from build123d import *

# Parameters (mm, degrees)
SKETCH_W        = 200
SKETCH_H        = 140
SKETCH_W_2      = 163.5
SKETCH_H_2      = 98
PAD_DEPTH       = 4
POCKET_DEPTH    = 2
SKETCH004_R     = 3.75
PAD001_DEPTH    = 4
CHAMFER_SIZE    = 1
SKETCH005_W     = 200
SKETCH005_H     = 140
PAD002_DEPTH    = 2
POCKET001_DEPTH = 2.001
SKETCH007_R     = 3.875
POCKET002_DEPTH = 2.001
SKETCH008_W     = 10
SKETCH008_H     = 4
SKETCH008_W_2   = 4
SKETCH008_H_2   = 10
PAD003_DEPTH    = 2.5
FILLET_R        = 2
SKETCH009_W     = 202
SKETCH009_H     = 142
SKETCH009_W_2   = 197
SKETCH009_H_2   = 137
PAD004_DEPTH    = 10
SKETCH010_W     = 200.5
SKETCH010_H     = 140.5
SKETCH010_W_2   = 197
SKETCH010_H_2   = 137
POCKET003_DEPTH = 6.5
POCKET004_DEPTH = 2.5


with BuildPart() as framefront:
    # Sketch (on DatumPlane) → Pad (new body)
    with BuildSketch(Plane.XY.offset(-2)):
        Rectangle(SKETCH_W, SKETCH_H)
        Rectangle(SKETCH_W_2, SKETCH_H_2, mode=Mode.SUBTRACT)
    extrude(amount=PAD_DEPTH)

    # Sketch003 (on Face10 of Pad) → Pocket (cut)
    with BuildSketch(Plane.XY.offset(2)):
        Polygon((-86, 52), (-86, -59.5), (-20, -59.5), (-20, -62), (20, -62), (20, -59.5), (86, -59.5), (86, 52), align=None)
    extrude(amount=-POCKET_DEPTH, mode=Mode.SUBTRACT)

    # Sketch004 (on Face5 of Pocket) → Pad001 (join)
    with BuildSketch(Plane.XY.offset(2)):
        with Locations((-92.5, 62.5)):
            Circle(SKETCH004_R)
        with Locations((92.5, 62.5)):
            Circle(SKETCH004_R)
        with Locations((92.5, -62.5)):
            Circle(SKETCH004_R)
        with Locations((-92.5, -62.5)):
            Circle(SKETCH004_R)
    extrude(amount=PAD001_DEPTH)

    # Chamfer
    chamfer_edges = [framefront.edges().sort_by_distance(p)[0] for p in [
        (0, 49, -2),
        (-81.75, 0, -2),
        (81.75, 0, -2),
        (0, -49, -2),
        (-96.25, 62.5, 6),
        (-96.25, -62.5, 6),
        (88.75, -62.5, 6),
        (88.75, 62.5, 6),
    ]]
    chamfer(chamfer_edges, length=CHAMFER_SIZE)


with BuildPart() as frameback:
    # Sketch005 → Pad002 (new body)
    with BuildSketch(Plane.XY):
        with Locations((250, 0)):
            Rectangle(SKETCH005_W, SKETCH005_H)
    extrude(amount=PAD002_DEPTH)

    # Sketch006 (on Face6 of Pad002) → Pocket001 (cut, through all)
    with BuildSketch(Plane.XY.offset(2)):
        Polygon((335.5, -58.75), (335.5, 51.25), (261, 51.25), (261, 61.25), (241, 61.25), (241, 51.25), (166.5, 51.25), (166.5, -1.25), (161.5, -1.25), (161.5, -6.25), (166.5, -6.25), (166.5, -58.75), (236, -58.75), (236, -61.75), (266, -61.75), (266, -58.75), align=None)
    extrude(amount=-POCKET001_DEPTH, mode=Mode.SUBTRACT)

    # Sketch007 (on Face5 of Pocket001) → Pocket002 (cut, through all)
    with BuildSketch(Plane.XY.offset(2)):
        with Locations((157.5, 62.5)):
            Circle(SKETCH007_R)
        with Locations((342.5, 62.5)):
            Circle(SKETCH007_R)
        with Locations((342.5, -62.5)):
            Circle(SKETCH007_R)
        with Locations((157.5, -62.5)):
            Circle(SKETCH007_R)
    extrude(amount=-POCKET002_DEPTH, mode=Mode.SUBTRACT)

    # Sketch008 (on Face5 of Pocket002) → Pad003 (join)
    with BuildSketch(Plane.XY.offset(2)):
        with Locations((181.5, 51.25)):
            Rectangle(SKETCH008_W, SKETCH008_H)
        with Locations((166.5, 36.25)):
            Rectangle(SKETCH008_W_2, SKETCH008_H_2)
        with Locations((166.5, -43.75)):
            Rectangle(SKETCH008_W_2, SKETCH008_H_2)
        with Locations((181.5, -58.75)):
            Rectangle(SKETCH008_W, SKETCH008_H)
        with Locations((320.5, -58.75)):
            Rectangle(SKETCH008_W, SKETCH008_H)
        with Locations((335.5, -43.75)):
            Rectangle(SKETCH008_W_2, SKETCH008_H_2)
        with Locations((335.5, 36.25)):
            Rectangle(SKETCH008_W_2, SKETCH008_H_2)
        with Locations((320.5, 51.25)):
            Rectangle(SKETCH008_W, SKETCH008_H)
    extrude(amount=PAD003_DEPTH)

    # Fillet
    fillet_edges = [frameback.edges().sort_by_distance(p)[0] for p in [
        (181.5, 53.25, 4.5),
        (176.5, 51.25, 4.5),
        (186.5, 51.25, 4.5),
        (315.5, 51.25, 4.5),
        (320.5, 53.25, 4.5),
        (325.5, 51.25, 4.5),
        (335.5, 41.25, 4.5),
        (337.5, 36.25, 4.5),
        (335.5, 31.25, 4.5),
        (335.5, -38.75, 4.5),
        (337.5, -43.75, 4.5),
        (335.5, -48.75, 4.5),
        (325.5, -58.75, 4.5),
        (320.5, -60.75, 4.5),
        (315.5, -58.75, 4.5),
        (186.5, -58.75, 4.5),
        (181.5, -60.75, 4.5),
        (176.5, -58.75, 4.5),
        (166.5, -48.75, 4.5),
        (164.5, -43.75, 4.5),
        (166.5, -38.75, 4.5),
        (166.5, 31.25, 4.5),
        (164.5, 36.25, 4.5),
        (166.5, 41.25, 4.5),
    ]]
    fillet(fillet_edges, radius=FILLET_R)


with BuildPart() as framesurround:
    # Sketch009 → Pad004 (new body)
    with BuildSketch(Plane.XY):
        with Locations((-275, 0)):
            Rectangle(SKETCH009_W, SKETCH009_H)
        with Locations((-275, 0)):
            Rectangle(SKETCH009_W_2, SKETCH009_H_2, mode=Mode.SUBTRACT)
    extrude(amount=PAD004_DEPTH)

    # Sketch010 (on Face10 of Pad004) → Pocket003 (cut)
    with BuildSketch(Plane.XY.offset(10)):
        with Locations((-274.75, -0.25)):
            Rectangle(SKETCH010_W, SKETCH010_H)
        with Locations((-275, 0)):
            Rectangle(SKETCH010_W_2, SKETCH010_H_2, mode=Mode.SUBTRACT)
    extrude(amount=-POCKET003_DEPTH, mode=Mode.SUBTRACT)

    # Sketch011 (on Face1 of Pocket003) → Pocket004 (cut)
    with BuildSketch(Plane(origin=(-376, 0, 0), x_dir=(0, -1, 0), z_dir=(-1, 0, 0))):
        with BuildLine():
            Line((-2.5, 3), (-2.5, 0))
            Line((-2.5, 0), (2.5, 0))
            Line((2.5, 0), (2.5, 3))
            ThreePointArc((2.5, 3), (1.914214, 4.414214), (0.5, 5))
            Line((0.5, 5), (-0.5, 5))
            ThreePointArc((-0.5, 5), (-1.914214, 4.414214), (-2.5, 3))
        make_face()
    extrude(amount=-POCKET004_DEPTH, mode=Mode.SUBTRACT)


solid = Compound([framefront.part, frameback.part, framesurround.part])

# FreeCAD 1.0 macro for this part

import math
import FreeCAD as App
import Part
import Sketcher


def edges_at(feature, points):
    """Names of the edges that pass closest to the given points."""
    edges = feature.Shape.Edges
    near = lambda p: min(range(len(edges)), key=lambda i: edges[i].distToShape(Part.Vertex(*p))[0])
    return sorted({f"Edge{near(p) + 1}" for p in points})

doc = App.newDocument("Part")
body = doc.addObject("PartDesign::Body", "Body")

sketch1 = body.newObject("Sketcher::SketchObject", "Sketch")
sketch1.AttachmentSupport = (doc.getObject("XY_Plane"), [""])
sketch1.MapMode = "FlatFace"
sketch1.AttachmentOffset = App.Placement(App.Vector(0, 0, -2), App.Rotation())
sketch1.addGeometry([
    Part.LineSegment(App.Vector(-100, 70, 0), App.Vector(-100, -70, 0)),
    Part.LineSegment(App.Vector(-100, -70, 0), App.Vector(100, -70, 0)),
    Part.LineSegment(App.Vector(100, -70, 0), App.Vector(100, 70, 0)),
    Part.LineSegment(App.Vector(100, 70, 0), App.Vector(-100, 70, 0)),
    Part.LineSegment(App.Vector(82, -49, 0), App.Vector(-82, -49, 0)),
    Part.LineSegment(App.Vector(-82, -49, 0), App.Vector(-82, 49, 0)),
    Part.LineSegment(App.Vector(-82, 49, 0), App.Vector(82, 49, 0)),
    Part.LineSegment(App.Vector(82, 49, 0), App.Vector(82, -49, 0)),
], False)
sketch1.addConstraint([
    Sketcher.Constraint("Coincident", 0, 2, 1, 1),
    Sketcher.Constraint("Coincident", 1, 2, 2, 1),
    Sketcher.Constraint("Coincident", 2, 2, 3, 1),
    Sketcher.Constraint("Coincident", 3, 2, 0, 1),
    Sketcher.Constraint("Coincident", 4, 2, 5, 1),
    Sketcher.Constraint("Coincident", 5, 2, 6, 1),
    Sketcher.Constraint("Coincident", 6, 2, 7, 1),
    Sketcher.Constraint("Coincident", 7, 2, 4, 1),
    Sketcher.Constraint("Vertical", 0),
    Sketcher.Constraint("Horizontal", 1),
    Sketcher.Constraint("Vertical", 2),
    Sketcher.Constraint("Horizontal", 3),
    Sketcher.Constraint("Horizontal", 4),
    Sketcher.Constraint("Vertical", 5),
    Sketcher.Constraint("Horizontal", 6),
    Sketcher.Constraint("Vertical", 7),
    Sketcher.Constraint("Symmetric", 0, 2, 2, 2, -1, 1),
    Sketcher.Constraint("Symmetric", 4, 2, 6, 2, -1, 1),
    Sketcher.Constraint("DistanceX", 1, 1, 1, 2, 200.0),
    Sketcher.Constraint("DistanceY", 0, 2, 0, 1, 140.0),
    Sketcher.Constraint("DistanceY", 5, 1, 5, 2, 98.0),
    Sketcher.Constraint("DistanceX", 4, 2, 4, 1, 163.5),
])
pad1 = body.newObject("PartDesign::Pad", "Pad")
pad1.Profile = sketch1
pad1.Length = 4

sketch2 = body.newObject("Sketcher::SketchObject", "Sketch001")
sketch2.AttachmentSupport = (doc.getObject("XY_Plane"), [""])
sketch2.MapMode = "FlatFace"
sketch2.AttachmentOffset = App.Placement(App.Vector(0, 0, 2), App.Rotation())
sketch2.addGeometry([
    Part.LineSegment(App.Vector(-86, 52, 0), App.Vector(-86, -59.5, 0)),
    Part.LineSegment(App.Vector(-86, -59.5, 0), App.Vector(-20, -59.5, 0)),
    Part.LineSegment(App.Vector(-20, -59.5, 0), App.Vector(-20, -62, 0)),
    Part.LineSegment(App.Vector(-20, -62, 0), App.Vector(20, -62, 0)),
    Part.LineSegment(App.Vector(20, -62, 0), App.Vector(20, -59.5, 0)),
    Part.LineSegment(App.Vector(20, -59.5, 0), App.Vector(86, -59.5, 0)),
    Part.LineSegment(App.Vector(86, -59.5, 0), App.Vector(86, 52, 0)),
    Part.LineSegment(App.Vector(86, 52, 0), App.Vector(-86, 52, 0)),
], False)
sketch2.addConstraint([
    Sketcher.Constraint("Coincident", 0, 2, 1, 1),
    Sketcher.Constraint("Coincident", 1, 2, 2, 1),
    Sketcher.Constraint("Coincident", 2, 2, 3, 1),
    Sketcher.Constraint("Coincident", 3, 2, 4, 1),
    Sketcher.Constraint("Coincident", 4, 2, 5, 1),
    Sketcher.Constraint("Coincident", 5, 2, 6, 1),
    Sketcher.Constraint("Coincident", 6, 2, 7, 1),
    Sketcher.Constraint("Coincident", 7, 2, 0, 1),
    Sketcher.Constraint("Vertical", 0),
    Sketcher.Constraint("Horizontal", 1),
    Sketcher.Constraint("Vertical", 2),
    Sketcher.Constraint("Horizontal", 3),
    Sketcher.Constraint("Vertical", 4),
    Sketcher.Constraint("Horizontal", 5),
    Sketcher.Constraint("Vertical", 6),
    Sketcher.Constraint("Horizontal", 7),
    Sketcher.Constraint("Symmetric", 1, 2, 4, 2, -2),
    Sketcher.Constraint("Equal", 1, 5),
    Sketcher.Constraint("DistanceX", 1, 1, 1, 2, 66.0),
    Sketcher.Constraint("DistanceX", 3, 1, 3, 2, 40.0),
    Sketcher.Constraint("DistanceY", 0, 2, 0, 1, 111.5),
    Sketcher.Constraint("DistanceY", 2, 2, 2, 1, 2.5),
    Sketcher.Constraint("DistanceY", 2, 2, -1, 1, 62.0),
])
pocket1 = body.newObject("PartDesign::Pocket", "Pocket")
pocket1.Profile = sketch2
pocket1.Length = 2

sketch3 = body.newObject("Sketcher::SketchObject", "Sketch002")
sketch3.AttachmentSupport = (doc.getObject("XY_Plane"), [""])
sketch3.MapMode = "FlatFace"
sketch3.AttachmentOffset = App.Placement(App.Vector(0, 0, 2), App.Rotation())
sketch3.addGeometry([
    Part.Circle(App.Vector(-92.5, 62.5, 0), App.Vector(0, 0, 1), 3.8),
    Part.Circle(App.Vector(92.5, 62.5, 0), App.Vector(0, 0, 1), 3.8),
    Part.Circle(App.Vector(92.5, -62.5, 0), App.Vector(0, 0, 1), 3.8),
    Part.Circle(App.Vector(-92.5, -62.5, 0), App.Vector(0, 0, 1), 3.8),
], False)
sketch3.addConstraint([
    Sketcher.Constraint("Equal", 0, 1),
    Sketcher.Constraint("Equal", 1, 2),
    Sketcher.Constraint("Equal", 2, 3),
    Sketcher.Constraint("Symmetric", 0, 3, 2, 3, -1, 1),
    Sketcher.Constraint("Symmetric", 1, 3, 3, 3, -1, 1),
    Sketcher.Constraint("Symmetric", 0, 3, 1, 3, -2),
    Sketcher.Constraint("Diameter", 0, 7.5),
    Sketcher.Constraint("DistanceX", 0, 3, 1, 3, 185.0),
    Sketcher.Constraint("DistanceY", 2, 3, 1, 3, 125.0),
])
pad2 = body.newObject("PartDesign::Pad", "Pad001")
pad2.Profile = sketch3
pad2.Length = 4
doc.recompute()

chamfer = body.newObject("PartDesign::Chamfer", "Chamfer")
chamfer.Base = (pad2, edges_at(pad2, [
    (0, 49, -2),
    (-81.75, 0, -2),
    (81.75, 0, -2),
    (0, -49, -2),
    (-96.25, 62.5, 6),
    (-96.25, -62.5, 6),
    (88.75, -62.5, 6),
    (88.75, 62.5, 6),
]))
chamfer.Size = 1
body2 = doc.addObject("PartDesign::Body", "Body001")

sketch4 = body2.newObject("Sketcher::SketchObject", "Sketch003")
sketch4.AttachmentSupport = (doc.getObject("XY_Plane001"), [""])
sketch4.MapMode = "FlatFace"
sketch4.addGeometry([
    Part.LineSegment(App.Vector(150, 70, 0), App.Vector(150, -70, 0)),
    Part.LineSegment(App.Vector(150, -70, 0), App.Vector(350, -70, 0)),
    Part.LineSegment(App.Vector(350, -70, 0), App.Vector(350, 70, 0)),
    Part.LineSegment(App.Vector(350, 70, 0), App.Vector(150, 70, 0)),
], False)
sketch4.addConstraint([
    Sketcher.Constraint("Coincident", 0, 2, 1, 1),
    Sketcher.Constraint("Coincident", 1, 2, 2, 1),
    Sketcher.Constraint("Coincident", 2, 2, 3, 1),
    Sketcher.Constraint("Coincident", 3, 2, 0, 1),
    Sketcher.Constraint("Vertical", 0),
    Sketcher.Constraint("Horizontal", 1),
    Sketcher.Constraint("Vertical", 2),
    Sketcher.Constraint("Horizontal", 3),
    Sketcher.Constraint("DistanceX", 1, 1, 1, 2, 200.0),
    Sketcher.Constraint("DistanceY", 0, 2, 0, 1, 140.0),
    Sketcher.Constraint("DistanceX", -1, 1, 0, 2, 150.0),
    Sketcher.Constraint("DistanceY", 0, 2, -1, 1, 70.0),
])
pad3 = body2.newObject("PartDesign::Pad", "Pad002")
pad3.Profile = sketch4
pad3.Length = 2

sketch5 = body2.newObject("Sketcher::SketchObject", "Sketch004")
sketch5.AttachmentSupport = (doc.getObject("XY_Plane001"), [""])
sketch5.MapMode = "FlatFace"
sketch5.AttachmentOffset = App.Placement(App.Vector(0, 0, 2), App.Rotation())
sketch5.addGeometry([
    Part.LineSegment(App.Vector(335.5, -58.8, 0), App.Vector(335.5, 51.2, 0)),
    Part.LineSegment(App.Vector(335.5, 51.2, 0), App.Vector(261, 51.2, 0)),
    Part.LineSegment(App.Vector(261, 51.2, 0), App.Vector(261, 61.2, 0)),
    Part.LineSegment(App.Vector(261, 61.2, 0), App.Vector(241, 61.2, 0)),
    Part.LineSegment(App.Vector(241, 61.2, 0), App.Vector(241, 51.2, 0)),
    Part.LineSegment(App.Vector(241, 51.2, 0), App.Vector(166.5, 51.2, 0)),
    Part.LineSegment(App.Vector(166.5, 51.2, 0), App.Vector(166.5, -1.2, 0)),
    Part.LineSegment(App.Vector(166.5, -1.2, 0), App.Vector(161.5, -1.2, 0)),
    Part.LineSegment(App.Vector(161.5, -1.2, 0), App.Vector(161.5, -6.2, 0)),
    Part.LineSegment(App.Vector(161.5, -6.2, 0), App.Vector(166.5, -6.2, 0)),
    Part.LineSegment(App.Vector(166.5, -6.2, 0), App.Vector(166.5, -58.8, 0)),
    Part.LineSegment(App.Vector(166.5, -58.8, 0), App.Vector(236, -58.8, 0)),
    Part.LineSegment(App.Vector(236, -58.8, 0), App.Vector(236, -61.8, 0)),
    Part.LineSegment(App.Vector(236, -61.8, 0), App.Vector(266, -61.8, 0)),
    Part.LineSegment(App.Vector(266, -61.8, 0), App.Vector(266, -58.8, 0)),
    Part.LineSegment(App.Vector(266, -58.8, 0), App.Vector(335.5, -58.8, 0)),
], False)
sketch5.addConstraint([
    Sketcher.Constraint("Coincident", 0, 2, 1, 1),
    Sketcher.Constraint("Coincident", 1, 2, 2, 1),
    Sketcher.Constraint("Coincident", 2, 2, 3, 1),
    Sketcher.Constraint("Coincident", 3, 2, 4, 1),
    Sketcher.Constraint("Coincident", 4, 2, 5, 1),
    Sketcher.Constraint("Coincident", 5, 2, 6, 1),
    Sketcher.Constraint("Coincident", 6, 2, 7, 1),
    Sketcher.Constraint("Coincident", 7, 2, 8, 1),
    Sketcher.Constraint("Coincident", 8, 2, 9, 1),
    Sketcher.Constraint("Coincident", 9, 2, 10, 1),
    Sketcher.Constraint("Coincident", 10, 2, 11, 1),
    Sketcher.Constraint("Coincident", 11, 2, 12, 1),
    Sketcher.Constraint("Coincident", 12, 2, 13, 1),
    Sketcher.Constraint("Coincident", 13, 2, 14, 1),
    Sketcher.Constraint("Coincident", 14, 2, 15, 1),
    Sketcher.Constraint("Coincident", 15, 2, 0, 1),
    Sketcher.Constraint("Vertical", 0),
    Sketcher.Constraint("Horizontal", 1),
    Sketcher.Constraint("Vertical", 2),
    Sketcher.Constraint("Horizontal", 3),
    Sketcher.Constraint("Vertical", 4),
    Sketcher.Constraint("Horizontal", 5),
    Sketcher.Constraint("Vertical", 6),
    Sketcher.Constraint("Horizontal", 7),
    Sketcher.Constraint("Vertical", 8),
    Sketcher.Constraint("Horizontal", 9),
    Sketcher.Constraint("Vertical", 10),
    Sketcher.Constraint("Horizontal", 11),
    Sketcher.Constraint("Vertical", 12),
    Sketcher.Constraint("Horizontal", 13),
    Sketcher.Constraint("Vertical", 14),
    Sketcher.Constraint("Horizontal", 15),
    Sketcher.Constraint("Horizontal", 1, 2, 4, 2),
    Sketcher.Constraint("Horizontal", 11, 2, 14, 2),
    Sketcher.Constraint("Vertical", 6, 2, 9, 2),
    Sketcher.Constraint("Equal", 1, 5),
    Sketcher.Constraint("Equal", 11, 15),
    Sketcher.Constraint("Equal", 9, 8),
    Sketcher.Constraint("Equal", 6, 10),
    Sketcher.Constraint("DistanceX", 3, 2, 3, 1, 20.0),
    Sketcher.Constraint("DistanceX", 7, 2, 7, 1, 5.0),
    Sketcher.Constraint("DistanceX", 13, 1, 13, 2, 30.0),
    Sketcher.Constraint("DistanceY", 0, 1, 0, 2, 110.0),
    Sketcher.Constraint("DistanceY", 2, 1, 2, 2, 10.0),
    Sketcher.Constraint("DistanceY", 12, 2, 12, 1, 3.0),
    Sketcher.Constraint("DistanceX", 1, 2, 1, 1, 74.5),
    Sketcher.Constraint("DistanceX", -1, 1, 1, 2, 261.0),
    Sketcher.Constraint("DistanceY", -1, 1, 0, 2, 51.25),
])
pocket2 = body2.newObject("PartDesign::Pocket", "Pocket001")
pocket2.Profile = sketch5
pocket2.Type = "ThroughAll"

sketch6 = body2.newObject("Sketcher::SketchObject", "Sketch005")
sketch6.AttachmentSupport = (doc.getObject("XY_Plane001"), [""])
sketch6.MapMode = "FlatFace"
sketch6.AttachmentOffset = App.Placement(App.Vector(0, 0, 2), App.Rotation())
sketch6.addGeometry([
    Part.Circle(App.Vector(157.5, 62.5, 0), App.Vector(0, 0, 1), 3.9),
    Part.Circle(App.Vector(342.5, 62.5, 0), App.Vector(0, 0, 1), 3.9),
    Part.Circle(App.Vector(342.5, -62.5, 0), App.Vector(0, 0, 1), 3.9),
    Part.Circle(App.Vector(157.5, -62.5, 0), App.Vector(0, 0, 1), 3.9),
], False)
sketch6.addConstraint([
    Sketcher.Constraint("Equal", 0, 1),
    Sketcher.Constraint("Equal", 1, 2),
    Sketcher.Constraint("Equal", 2, 3),
    Sketcher.Constraint("Symmetric", 1, 3, 2, 3, -1),
    Sketcher.Constraint("Symmetric", 0, 3, 3, 3, -1),
    Sketcher.Constraint("Horizontal", 0, 3, 1, 3),
    Sketcher.Constraint("Diameter", 0, 7.75),
    Sketcher.Constraint("DistanceX", 0, 3, 1, 3, 185.0),
    Sketcher.Constraint("DistanceY", 2, 3, 1, 3, 125.0),
    Sketcher.Constraint("DistanceX", -1, 1, 0, 3, 157.5),
])
pocket3 = body2.newObject("PartDesign::Pocket", "Pocket002")
pocket3.Profile = sketch6
pocket3.Type = "ThroughAll"

sketch7 = body2.newObject("Sketcher::SketchObject", "Sketch006")
sketch7.AttachmentSupport = (doc.getObject("XY_Plane001"), [""])
sketch7.MapMode = "FlatFace"
sketch7.AttachmentOffset = App.Placement(App.Vector(0, 0, 2), App.Rotation())
sketch7.addGeometry([
    Part.LineSegment(App.Vector(176.5, 53.2, 0), App.Vector(176.5, 49.2, 0)),
    Part.LineSegment(App.Vector(176.5, 49.2, 0), App.Vector(186.5, 49.2, 0)),
    Part.LineSegment(App.Vector(186.5, 49.2, 0), App.Vector(186.5, 53.2, 0)),
    Part.LineSegment(App.Vector(186.5, 53.2, 0), App.Vector(176.5, 53.2, 0)),
    Part.LineSegment(App.Vector(164.5, 41.2, 0), App.Vector(164.5, 31.2, 0)),
    Part.LineSegment(App.Vector(164.5, 31.2, 0), App.Vector(168.5, 31.2, 0)),
    Part.LineSegment(App.Vector(168.5, 31.2, 0), App.Vector(168.5, 41.2, 0)),
    Part.LineSegment(App.Vector(168.5, 41.2, 0), App.Vector(164.5, 41.2, 0)),
    Part.LineSegment(App.Vector(164.5, -38.8, 0), App.Vector(164.5, -48.8, 0)),
    Part.LineSegment(App.Vector(164.5, -48.8, 0), App.Vector(168.5, -48.8, 0)),
    Part.LineSegment(App.Vector(168.5, -48.8, 0), App.Vector(168.5, -38.8, 0)),
    Part.LineSegment(App.Vector(168.5, -38.8, 0), App.Vector(164.5, -38.8, 0)),
    Part.LineSegment(App.Vector(176.5, -56.8, 0), App.Vector(176.5, -60.8, 0)),
    Part.LineSegment(App.Vector(176.5, -60.8, 0), App.Vector(186.5, -60.8, 0)),
    Part.LineSegment(App.Vector(186.5, -60.8, 0), App.Vector(186.5, -56.8, 0)),
    Part.LineSegment(App.Vector(186.5, -56.8, 0), App.Vector(176.5, -56.8, 0)),
    Part.LineSegment(App.Vector(315.5, -56.8, 0), App.Vector(315.5, -60.8, 0)),
    Part.LineSegment(App.Vector(315.5, -60.8, 0), App.Vector(325.5, -60.8, 0)),
    Part.LineSegment(App.Vector(325.5, -60.8, 0), App.Vector(325.5, -56.8, 0)),
    Part.LineSegment(App.Vector(325.5, -56.8, 0), App.Vector(315.5, -56.8, 0)),
    Part.LineSegment(App.Vector(333.5, -38.8, 0), App.Vector(333.5, -48.8, 0)),
    Part.LineSegment(App.Vector(333.5, -48.8, 0), App.Vector(337.5, -48.8, 0)),
    Part.LineSegment(App.Vector(337.5, -48.8, 0), App.Vector(337.5, -38.8, 0)),
    Part.LineSegment(App.Vector(337.5, -38.8, 0), App.Vector(333.5, -38.8, 0)),
    Part.LineSegment(App.Vector(333.5, 41.2, 0), App.Vector(333.5, 31.2, 0)),
    Part.LineSegment(App.Vector(333.5, 31.2, 0), App.Vector(337.5, 31.2, 0)),
    Part.LineSegment(App.Vector(337.5, 31.2, 0), App.Vector(337.5, 41.2, 0)),
    Part.LineSegment(App.Vector(337.5, 41.2, 0), App.Vector(333.5, 41.2, 0)),
    Part.LineSegment(App.Vector(315.5, 53.2, 0), App.Vector(315.5, 49.2, 0)),
    Part.LineSegment(App.Vector(315.5, 49.2, 0), App.Vector(325.5, 49.2, 0)),
    Part.LineSegment(App.Vector(325.5, 49.2, 0), App.Vector(325.5, 53.2, 0)),
    Part.LineSegment(App.Vector(325.5, 53.2, 0), App.Vector(315.5, 53.2, 0)),
], False)
sketch7.addConstraint([
    Sketcher.Constraint("Coincident", 0, 2, 1, 1),
    Sketcher.Constraint("Coincident", 1, 2, 2, 1),
    Sketcher.Constraint("Coincident", 2, 2, 3, 1),
    Sketcher.Constraint("Coincident", 3, 2, 0, 1),
    Sketcher.Constraint("Coincident", 4, 2, 5, 1),
    Sketcher.Constraint("Coincident", 5, 2, 6, 1),
    Sketcher.Constraint("Coincident", 6, 2, 7, 1),
    Sketcher.Constraint("Coincident", 7, 2, 4, 1),
    Sketcher.Constraint("Coincident", 8, 2, 9, 1),
    Sketcher.Constraint("Coincident", 9, 2, 10, 1),
    Sketcher.Constraint("Coincident", 10, 2, 11, 1),
    Sketcher.Constraint("Coincident", 11, 2, 8, 1),
    Sketcher.Constraint("Coincident", 12, 2, 13, 1),
    Sketcher.Constraint("Coincident", 13, 2, 14, 1),
    Sketcher.Constraint("Coincident", 14, 2, 15, 1),
    Sketcher.Constraint("Coincident", 15, 2, 12, 1),
    Sketcher.Constraint("Coincident", 16, 2, 17, 1),
    Sketcher.Constraint("Coincident", 17, 2, 18, 1),
    Sketcher.Constraint("Coincident", 18, 2, 19, 1),
    Sketcher.Constraint("Coincident", 19, 2, 16, 1),
    Sketcher.Constraint("Coincident", 20, 2, 21, 1),
    Sketcher.Constraint("Coincident", 21, 2, 22, 1),
    Sketcher.Constraint("Coincident", 22, 2, 23, 1),
    Sketcher.Constraint("Coincident", 23, 2, 20, 1),
    Sketcher.Constraint("Coincident", 24, 2, 25, 1),
    Sketcher.Constraint("Coincident", 25, 2, 26, 1),
    Sketcher.Constraint("Coincident", 26, 2, 27, 1),
    Sketcher.Constraint("Coincident", 27, 2, 24, 1),
    Sketcher.Constraint("Coincident", 28, 2, 29, 1),
    Sketcher.Constraint("Coincident", 29, 2, 30, 1),
    Sketcher.Constraint("Coincident", 30, 2, 31, 1),
    Sketcher.Constraint("Coincident", 31, 2, 28, 1),
    Sketcher.Constraint("Vertical", 0),
    Sketcher.Constraint("Horizontal", 1),
    Sketcher.Constraint("Vertical", 2),
    Sketcher.Constraint("Horizontal", 3),
    Sketcher.Constraint("Vertical", 4),
    Sketcher.Constraint("Horizontal", 5),
    Sketcher.Constraint("Vertical", 6),
    Sketcher.Constraint("Horizontal", 7),
    Sketcher.Constraint("Vertical", 8),
    Sketcher.Constraint("Horizontal", 9),
    Sketcher.Constraint("Vertical", 10),
    Sketcher.Constraint("Horizontal", 11),
    Sketcher.Constraint("Vertical", 12),
    Sketcher.Constraint("Horizontal", 13),
    Sketcher.Constraint("Vertical", 14),
    Sketcher.Constraint("Horizontal", 15),
    Sketcher.Constraint("Vertical", 16),
    Sketcher.Constraint("Horizontal", 17),
    Sketcher.Constraint("Vertical", 18),
    Sketcher.Constraint("Horizontal", 19),
    Sketcher.Constraint("Vertical", 20),
    Sketcher.Constraint("Horizontal", 21),
    Sketcher.Constraint("Vertical", 22),
    Sketcher.Constraint("Horizontal", 23),
    Sketcher.Constraint("Vertical", 24),
    Sketcher.Constraint("Horizontal", 25),
    Sketcher.Constraint("Vertical", 26),
    Sketcher.Constraint("Horizontal", 27),
    Sketcher.Constraint("Vertical", 28),
    Sketcher.Constraint("Horizontal", 29),
    Sketcher.Constraint("Vertical", 30),
    Sketcher.Constraint("Horizontal", 31),
    Sketcher.Constraint("Horizontal", 13, 2, 16, 2),
    Sketcher.Constraint("Horizontal", 15, 2, 18, 2),
    Sketcher.Constraint("Horizontal", 9, 2, 20, 2),
    Sketcher.Constraint("Horizontal", 11, 2, 22, 2),
    Sketcher.Constraint("Horizontal", 5, 2, 24, 2),
    Sketcher.Constraint("Horizontal", 7, 2, 26, 2),
    Sketcher.Constraint("Horizontal", 1, 2, 28, 2),
    Sketcher.Constraint("Horizontal", 3, 2, 30, 2),
    Sketcher.Constraint("Vertical", 7, 2, 8, 2),
    Sketcher.Constraint("Vertical", 6, 2, 9, 2),
    Sketcher.Constraint("Vertical", 3, 2, 12, 2),
    Sketcher.Constraint("Vertical", 2, 2, 13, 2),
    Sketcher.Constraint("Vertical", 23, 2, 24, 2),
    Sketcher.Constraint("Vertical", 22, 2, 25, 2),
    Sketcher.Constraint("Vertical", 19, 2, 28, 2),
    Sketcher.Constraint("Vertical", 18, 2, 29, 2),
    Sketcher.Constraint("Equal", 15, 17),
    Sketcher.Constraint("Equal", 11, 21),
    Sketcher.Constraint("Equal", 27, 0),
    Sketcher.Constraint("Equal", 31, 4),
    Sketcher.Constraint("Equal", 6, 8),
    Sketcher.Constraint("Equal", 2, 12),
    Sketcher.Constraint("DistanceX", 1, 1, 1, 2, 10.0),
    Sketcher.Constraint("DistanceX", 5, 1, 5, 2, 4.0),
    Sketcher.Constraint("DistanceX", 4, 2, 0, 2, 12.0),
    Sketcher.Constraint("DistanceY", 4, 2, 0, 2, 18.0),
    Sketcher.Constraint("DistanceY", 8, 2, 4, 2, 80.0),
    Sketcher.Constraint("DistanceY", 12, 2, 9, 2, 12.0),
    Sketcher.Constraint("DistanceX", 13, 2, 16, 2, 129.0),
    Sketcher.Constraint("DistanceX", 18, 2, 20, 2, 8.0),
    Sketcher.Constraint("DistanceX", -1, 1, 0, 2, 176.5),
    Sketcher.Constraint("DistanceY", -1, 1, 0, 2, 49.25),
])
pad4 = body2.newObject("PartDesign::Pad", "Pad003")
pad4.Profile = sketch7
pad4.Length = 2.5
doc.recompute()

fillet = body2.newObject("PartDesign::Fillet", "Fillet")
fillet.Base = (pad4, edges_at(pad4, [
    (181.5, 53.25, 4.5),
    (176.5, 51.25, 4.5),
    (186.5, 51.25, 4.5),
    (315.5, 51.25, 4.5),
    (320.5, 53.25, 4.5),
    (325.5, 51.25, 4.5),
    (335.5, 41.25, 4.5),
    (337.5, 36.25, 4.5),
    (335.5, 31.25, 4.5),
    (335.5, -38.75, 4.5),
    (337.5, -43.75, 4.5),
    (335.5, -48.75, 4.5),
    (325.5, -58.75, 4.5),
    (320.5, -60.75, 4.5),
    (315.5, -58.75, 4.5),
    (186.5, -58.75, 4.5),
    (181.5, -60.75, 4.5),
    (176.5, -58.75, 4.5),
    (166.5, -48.75, 4.5),
    (164.5, -43.75, 4.5),
    (166.5, -38.75, 4.5),
    (166.5, 31.25, 4.5),
    (164.5, 36.25, 4.5),
    (166.5, 41.25, 4.5),
]))
fillet.Radius = 2
body3 = doc.addObject("PartDesign::Body", "Body002")

sketch8 = body3.newObject("Sketcher::SketchObject", "Sketch007")
sketch8.AttachmentSupport = (doc.getObject("XY_Plane002"), [""])
sketch8.MapMode = "FlatFace"
sketch8.addGeometry([
    Part.LineSegment(App.Vector(-376, 71, 0), App.Vector(-376, -71, 0)),
    Part.LineSegment(App.Vector(-376, -71, 0), App.Vector(-174, -71, 0)),
    Part.LineSegment(App.Vector(-174, -71, 0), App.Vector(-174, 71, 0)),
    Part.LineSegment(App.Vector(-174, 71, 0), App.Vector(-376, 71, 0)),
    Part.LineSegment(App.Vector(-176, -68, 0), App.Vector(-374, -68, 0)),
    Part.LineSegment(App.Vector(-374, -68, 0), App.Vector(-374, 68, 0)),
    Part.LineSegment(App.Vector(-374, 68, 0), App.Vector(-176, 68, 0)),
    Part.LineSegment(App.Vector(-176, 68, 0), App.Vector(-176, -68, 0)),
], False)
sketch8.addConstraint([
    Sketcher.Constraint("Coincident", 0, 2, 1, 1),
    Sketcher.Constraint("Coincident", 1, 2, 2, 1),
    Sketcher.Constraint("Coincident", 2, 2, 3, 1),
    Sketcher.Constraint("Coincident", 3, 2, 0, 1),
    Sketcher.Constraint("Coincident", 4, 2, 5, 1),
    Sketcher.Constraint("Coincident", 5, 2, 6, 1),
    Sketcher.Constraint("Coincident", 6, 2, 7, 1),
    Sketcher.Constraint("Coincident", 7, 2, 4, 1),
    Sketcher.Constraint("Vertical", 0),
    Sketcher.Constraint("Horizontal", 1),
    Sketcher.Constraint("Vertical", 2),
    Sketcher.Constraint("Horizontal", 3),
    Sketcher.Constraint("Horizontal", 4),
    Sketcher.Constraint("Vertical", 5),
    Sketcher.Constraint("Horizontal", 6),
    Sketcher.Constraint("Vertical", 7),
    Sketcher.Constraint("DistanceX", 1, 1, 1, 2, 202.0),
    Sketcher.Constraint("DistanceX", 4, 2, 4, 1, 197.0),
    Sketcher.Constraint("DistanceY", 0, 2, 0, 1, 142.0),
    Sketcher.Constraint("DistanceY", 5, 1, 5, 2, 137.0),
    Sketcher.Constraint("DistanceX", 0, 2, -1, 1, 376.0),
    Sketcher.Constraint("DistanceY", 0, 2, -1, 1, 71.0),
    Sketcher.Constraint("DistanceX", 4, 2, -1, 1, 373.5),
    Sketcher.Constraint("DistanceY", 4, 2, -1, 1, 68.5),
])
pad5 = body3.newObject("PartDesign::Pad", "Pad004")
pad5.Profile = sketch8
pad5.Length = 10

sketch9 = body3.newObject("Sketcher::SketchObject", "Sketch008")
sketch9.AttachmentSupport = (doc.getObject("XY_Plane002"), [""])
sketch9.MapMode = "FlatFace"
sketch9.AttachmentOffset = App.Placement(App.Vector(0, 0, 10), App.Rotation())
sketch9.addGeometry([
    Part.LineSegment(App.Vector(-375, 70, 0), App.Vector(-375, -70, 0)),
    Part.LineSegment(App.Vector(-375, -70, 0), App.Vector(-174, -70, 0)),
    Part.LineSegment(App.Vector(-174, -70, 0), App.Vector(-174, 70, 0)),
    Part.LineSegment(App.Vector(-174, 70, 0), App.Vector(-375, 70, 0)),
    Part.LineSegment(App.Vector(-176, -68, 0), App.Vector(-374, -68, 0)),
    Part.LineSegment(App.Vector(-374, -68, 0), App.Vector(-374, 68, 0)),
    Part.LineSegment(App.Vector(-374, 68, 0), App.Vector(-176, 68, 0)),
    Part.LineSegment(App.Vector(-176, 68, 0), App.Vector(-176, -68, 0)),
], False)
sketch9.addConstraint([
    Sketcher.Constraint("Coincident", 0, 2, 1, 1),
    Sketcher.Constraint("Coincident", 1, 2, 2, 1),
    Sketcher.Constraint("Coincident", 2, 2, 3, 1),
    Sketcher.Constraint("Coincident", 3, 2, 0, 1),
    Sketcher.Constraint("Coincident", 4, 2, 5, 1),
    Sketcher.Constraint("Coincident", 5, 2, 6, 1),
    Sketcher.Constraint("Coincident", 6, 2, 7, 1),
    Sketcher.Constraint("Coincident", 7, 2, 4, 1),
    Sketcher.Constraint("Vertical", 0),
    Sketcher.Constraint("Horizontal", 1),
    Sketcher.Constraint("Vertical", 2),
    Sketcher.Constraint("Horizontal", 3),
    Sketcher.Constraint("Horizontal", 4),
    Sketcher.Constraint("Vertical", 5),
    Sketcher.Constraint("Horizontal", 6),
    Sketcher.Constraint("Vertical", 7),
    Sketcher.Constraint("DistanceX", 4, 2, 4, 1, 197.0),
    Sketcher.Constraint("DistanceY", 5, 1, 5, 2, 137.0),
    Sketcher.Constraint("DistanceX", 1, 1, 1, 2, 200.5),
    Sketcher.Constraint("DistanceY", 0, 2, 0, 1, 140.5),
    Sketcher.Constraint("DistanceX", 0, 2, -1, 1, 375.0),
    Sketcher.Constraint("DistanceY", -1, 1, 2, 2, 70.0),
    Sketcher.Constraint("DistanceY", 0, 2, 4, 2, 2.0),
    Sketcher.Constraint("DistanceX", 4, 2, 1, 2, 199.0),
])
pocket4 = body3.newObject("PartDesign::Pocket", "Pocket003")
pocket4.Profile = sketch9
pocket4.Length = 6.5

sketch10 = body3.newObject("Sketcher::SketchObject", "Sketch009")
sketch10.AttachmentSupport = (doc.getObject("YZ_Plane002"), [""])
sketch10.MapMode = "FlatFace"
sketch10.AttachmentOffset = App.Placement(App.Vector(0, 0, -376), App.Rotation())
sketch10.addGeometry([
    Part.LineSegment(App.Vector(2.5, 3, 0), App.Vector(2.5, 0, 0)),
    Part.LineSegment(App.Vector(2.5, 0, 0), App.Vector(-2.5, 0, 0)),
    Part.LineSegment(App.Vector(-2.5, 0, 0), App.Vector(-2.5, 3, 0)),
    Part.ArcOfCircle(Part.Circle(App.Vector(-0.5, 3, 0), App.Vector(0, 0, 1), 2), math.radians(90), math.radians(180)),
    Part.LineSegment(App.Vector(-0.5, 5, 0), App.Vector(0.5, 5, 0)),
    Part.ArcOfCircle(Part.Circle(App.Vector(0.5, 3, 0), App.Vector(0, 0, 1), 2), math.radians(0), math.radians(90)),
], False)
sketch10.addConstraint([
    Sketcher.Constraint("Coincident", 0, 2, 1, 1),
    Sketcher.Constraint("Coincident", 1, 2, 2, 1),
    Sketcher.Constraint("Tangent", 2, 2, 3, 2),
    Sketcher.Constraint("Tangent", 3, 1, 4, 1),
    Sketcher.Constraint("Tangent", 4, 2, 5, 2),
    Sketcher.Constraint("Tangent", 5, 1, 0, 1),
    Sketcher.Constraint("Vertical", 0),
    Sketcher.Constraint("Horizontal", 1),
    Sketcher.Constraint("Vertical", 2),
    Sketcher.Constraint("Horizontal", 4),
    Sketcher.Constraint("Equal", 3, 5),
    Sketcher.Constraint("Symmetric", 0, 2, 1, 2, -1, 1),
    Sketcher.Constraint("Radius", 3, 1.999999),
    Sketcher.Constraint("DistanceX", 1, 2, 1, 1, 5.0),
    Sketcher.Constraint("DistanceY", 0, 2, 0, 1, 3.0),
])
pocket5 = body3.newObject("PartDesign::Pocket", "Pocket004")
pocket5.Profile = sketch10
pocket5.Length = 2.5
pocket5.Reversed = True

doc.recompute()
